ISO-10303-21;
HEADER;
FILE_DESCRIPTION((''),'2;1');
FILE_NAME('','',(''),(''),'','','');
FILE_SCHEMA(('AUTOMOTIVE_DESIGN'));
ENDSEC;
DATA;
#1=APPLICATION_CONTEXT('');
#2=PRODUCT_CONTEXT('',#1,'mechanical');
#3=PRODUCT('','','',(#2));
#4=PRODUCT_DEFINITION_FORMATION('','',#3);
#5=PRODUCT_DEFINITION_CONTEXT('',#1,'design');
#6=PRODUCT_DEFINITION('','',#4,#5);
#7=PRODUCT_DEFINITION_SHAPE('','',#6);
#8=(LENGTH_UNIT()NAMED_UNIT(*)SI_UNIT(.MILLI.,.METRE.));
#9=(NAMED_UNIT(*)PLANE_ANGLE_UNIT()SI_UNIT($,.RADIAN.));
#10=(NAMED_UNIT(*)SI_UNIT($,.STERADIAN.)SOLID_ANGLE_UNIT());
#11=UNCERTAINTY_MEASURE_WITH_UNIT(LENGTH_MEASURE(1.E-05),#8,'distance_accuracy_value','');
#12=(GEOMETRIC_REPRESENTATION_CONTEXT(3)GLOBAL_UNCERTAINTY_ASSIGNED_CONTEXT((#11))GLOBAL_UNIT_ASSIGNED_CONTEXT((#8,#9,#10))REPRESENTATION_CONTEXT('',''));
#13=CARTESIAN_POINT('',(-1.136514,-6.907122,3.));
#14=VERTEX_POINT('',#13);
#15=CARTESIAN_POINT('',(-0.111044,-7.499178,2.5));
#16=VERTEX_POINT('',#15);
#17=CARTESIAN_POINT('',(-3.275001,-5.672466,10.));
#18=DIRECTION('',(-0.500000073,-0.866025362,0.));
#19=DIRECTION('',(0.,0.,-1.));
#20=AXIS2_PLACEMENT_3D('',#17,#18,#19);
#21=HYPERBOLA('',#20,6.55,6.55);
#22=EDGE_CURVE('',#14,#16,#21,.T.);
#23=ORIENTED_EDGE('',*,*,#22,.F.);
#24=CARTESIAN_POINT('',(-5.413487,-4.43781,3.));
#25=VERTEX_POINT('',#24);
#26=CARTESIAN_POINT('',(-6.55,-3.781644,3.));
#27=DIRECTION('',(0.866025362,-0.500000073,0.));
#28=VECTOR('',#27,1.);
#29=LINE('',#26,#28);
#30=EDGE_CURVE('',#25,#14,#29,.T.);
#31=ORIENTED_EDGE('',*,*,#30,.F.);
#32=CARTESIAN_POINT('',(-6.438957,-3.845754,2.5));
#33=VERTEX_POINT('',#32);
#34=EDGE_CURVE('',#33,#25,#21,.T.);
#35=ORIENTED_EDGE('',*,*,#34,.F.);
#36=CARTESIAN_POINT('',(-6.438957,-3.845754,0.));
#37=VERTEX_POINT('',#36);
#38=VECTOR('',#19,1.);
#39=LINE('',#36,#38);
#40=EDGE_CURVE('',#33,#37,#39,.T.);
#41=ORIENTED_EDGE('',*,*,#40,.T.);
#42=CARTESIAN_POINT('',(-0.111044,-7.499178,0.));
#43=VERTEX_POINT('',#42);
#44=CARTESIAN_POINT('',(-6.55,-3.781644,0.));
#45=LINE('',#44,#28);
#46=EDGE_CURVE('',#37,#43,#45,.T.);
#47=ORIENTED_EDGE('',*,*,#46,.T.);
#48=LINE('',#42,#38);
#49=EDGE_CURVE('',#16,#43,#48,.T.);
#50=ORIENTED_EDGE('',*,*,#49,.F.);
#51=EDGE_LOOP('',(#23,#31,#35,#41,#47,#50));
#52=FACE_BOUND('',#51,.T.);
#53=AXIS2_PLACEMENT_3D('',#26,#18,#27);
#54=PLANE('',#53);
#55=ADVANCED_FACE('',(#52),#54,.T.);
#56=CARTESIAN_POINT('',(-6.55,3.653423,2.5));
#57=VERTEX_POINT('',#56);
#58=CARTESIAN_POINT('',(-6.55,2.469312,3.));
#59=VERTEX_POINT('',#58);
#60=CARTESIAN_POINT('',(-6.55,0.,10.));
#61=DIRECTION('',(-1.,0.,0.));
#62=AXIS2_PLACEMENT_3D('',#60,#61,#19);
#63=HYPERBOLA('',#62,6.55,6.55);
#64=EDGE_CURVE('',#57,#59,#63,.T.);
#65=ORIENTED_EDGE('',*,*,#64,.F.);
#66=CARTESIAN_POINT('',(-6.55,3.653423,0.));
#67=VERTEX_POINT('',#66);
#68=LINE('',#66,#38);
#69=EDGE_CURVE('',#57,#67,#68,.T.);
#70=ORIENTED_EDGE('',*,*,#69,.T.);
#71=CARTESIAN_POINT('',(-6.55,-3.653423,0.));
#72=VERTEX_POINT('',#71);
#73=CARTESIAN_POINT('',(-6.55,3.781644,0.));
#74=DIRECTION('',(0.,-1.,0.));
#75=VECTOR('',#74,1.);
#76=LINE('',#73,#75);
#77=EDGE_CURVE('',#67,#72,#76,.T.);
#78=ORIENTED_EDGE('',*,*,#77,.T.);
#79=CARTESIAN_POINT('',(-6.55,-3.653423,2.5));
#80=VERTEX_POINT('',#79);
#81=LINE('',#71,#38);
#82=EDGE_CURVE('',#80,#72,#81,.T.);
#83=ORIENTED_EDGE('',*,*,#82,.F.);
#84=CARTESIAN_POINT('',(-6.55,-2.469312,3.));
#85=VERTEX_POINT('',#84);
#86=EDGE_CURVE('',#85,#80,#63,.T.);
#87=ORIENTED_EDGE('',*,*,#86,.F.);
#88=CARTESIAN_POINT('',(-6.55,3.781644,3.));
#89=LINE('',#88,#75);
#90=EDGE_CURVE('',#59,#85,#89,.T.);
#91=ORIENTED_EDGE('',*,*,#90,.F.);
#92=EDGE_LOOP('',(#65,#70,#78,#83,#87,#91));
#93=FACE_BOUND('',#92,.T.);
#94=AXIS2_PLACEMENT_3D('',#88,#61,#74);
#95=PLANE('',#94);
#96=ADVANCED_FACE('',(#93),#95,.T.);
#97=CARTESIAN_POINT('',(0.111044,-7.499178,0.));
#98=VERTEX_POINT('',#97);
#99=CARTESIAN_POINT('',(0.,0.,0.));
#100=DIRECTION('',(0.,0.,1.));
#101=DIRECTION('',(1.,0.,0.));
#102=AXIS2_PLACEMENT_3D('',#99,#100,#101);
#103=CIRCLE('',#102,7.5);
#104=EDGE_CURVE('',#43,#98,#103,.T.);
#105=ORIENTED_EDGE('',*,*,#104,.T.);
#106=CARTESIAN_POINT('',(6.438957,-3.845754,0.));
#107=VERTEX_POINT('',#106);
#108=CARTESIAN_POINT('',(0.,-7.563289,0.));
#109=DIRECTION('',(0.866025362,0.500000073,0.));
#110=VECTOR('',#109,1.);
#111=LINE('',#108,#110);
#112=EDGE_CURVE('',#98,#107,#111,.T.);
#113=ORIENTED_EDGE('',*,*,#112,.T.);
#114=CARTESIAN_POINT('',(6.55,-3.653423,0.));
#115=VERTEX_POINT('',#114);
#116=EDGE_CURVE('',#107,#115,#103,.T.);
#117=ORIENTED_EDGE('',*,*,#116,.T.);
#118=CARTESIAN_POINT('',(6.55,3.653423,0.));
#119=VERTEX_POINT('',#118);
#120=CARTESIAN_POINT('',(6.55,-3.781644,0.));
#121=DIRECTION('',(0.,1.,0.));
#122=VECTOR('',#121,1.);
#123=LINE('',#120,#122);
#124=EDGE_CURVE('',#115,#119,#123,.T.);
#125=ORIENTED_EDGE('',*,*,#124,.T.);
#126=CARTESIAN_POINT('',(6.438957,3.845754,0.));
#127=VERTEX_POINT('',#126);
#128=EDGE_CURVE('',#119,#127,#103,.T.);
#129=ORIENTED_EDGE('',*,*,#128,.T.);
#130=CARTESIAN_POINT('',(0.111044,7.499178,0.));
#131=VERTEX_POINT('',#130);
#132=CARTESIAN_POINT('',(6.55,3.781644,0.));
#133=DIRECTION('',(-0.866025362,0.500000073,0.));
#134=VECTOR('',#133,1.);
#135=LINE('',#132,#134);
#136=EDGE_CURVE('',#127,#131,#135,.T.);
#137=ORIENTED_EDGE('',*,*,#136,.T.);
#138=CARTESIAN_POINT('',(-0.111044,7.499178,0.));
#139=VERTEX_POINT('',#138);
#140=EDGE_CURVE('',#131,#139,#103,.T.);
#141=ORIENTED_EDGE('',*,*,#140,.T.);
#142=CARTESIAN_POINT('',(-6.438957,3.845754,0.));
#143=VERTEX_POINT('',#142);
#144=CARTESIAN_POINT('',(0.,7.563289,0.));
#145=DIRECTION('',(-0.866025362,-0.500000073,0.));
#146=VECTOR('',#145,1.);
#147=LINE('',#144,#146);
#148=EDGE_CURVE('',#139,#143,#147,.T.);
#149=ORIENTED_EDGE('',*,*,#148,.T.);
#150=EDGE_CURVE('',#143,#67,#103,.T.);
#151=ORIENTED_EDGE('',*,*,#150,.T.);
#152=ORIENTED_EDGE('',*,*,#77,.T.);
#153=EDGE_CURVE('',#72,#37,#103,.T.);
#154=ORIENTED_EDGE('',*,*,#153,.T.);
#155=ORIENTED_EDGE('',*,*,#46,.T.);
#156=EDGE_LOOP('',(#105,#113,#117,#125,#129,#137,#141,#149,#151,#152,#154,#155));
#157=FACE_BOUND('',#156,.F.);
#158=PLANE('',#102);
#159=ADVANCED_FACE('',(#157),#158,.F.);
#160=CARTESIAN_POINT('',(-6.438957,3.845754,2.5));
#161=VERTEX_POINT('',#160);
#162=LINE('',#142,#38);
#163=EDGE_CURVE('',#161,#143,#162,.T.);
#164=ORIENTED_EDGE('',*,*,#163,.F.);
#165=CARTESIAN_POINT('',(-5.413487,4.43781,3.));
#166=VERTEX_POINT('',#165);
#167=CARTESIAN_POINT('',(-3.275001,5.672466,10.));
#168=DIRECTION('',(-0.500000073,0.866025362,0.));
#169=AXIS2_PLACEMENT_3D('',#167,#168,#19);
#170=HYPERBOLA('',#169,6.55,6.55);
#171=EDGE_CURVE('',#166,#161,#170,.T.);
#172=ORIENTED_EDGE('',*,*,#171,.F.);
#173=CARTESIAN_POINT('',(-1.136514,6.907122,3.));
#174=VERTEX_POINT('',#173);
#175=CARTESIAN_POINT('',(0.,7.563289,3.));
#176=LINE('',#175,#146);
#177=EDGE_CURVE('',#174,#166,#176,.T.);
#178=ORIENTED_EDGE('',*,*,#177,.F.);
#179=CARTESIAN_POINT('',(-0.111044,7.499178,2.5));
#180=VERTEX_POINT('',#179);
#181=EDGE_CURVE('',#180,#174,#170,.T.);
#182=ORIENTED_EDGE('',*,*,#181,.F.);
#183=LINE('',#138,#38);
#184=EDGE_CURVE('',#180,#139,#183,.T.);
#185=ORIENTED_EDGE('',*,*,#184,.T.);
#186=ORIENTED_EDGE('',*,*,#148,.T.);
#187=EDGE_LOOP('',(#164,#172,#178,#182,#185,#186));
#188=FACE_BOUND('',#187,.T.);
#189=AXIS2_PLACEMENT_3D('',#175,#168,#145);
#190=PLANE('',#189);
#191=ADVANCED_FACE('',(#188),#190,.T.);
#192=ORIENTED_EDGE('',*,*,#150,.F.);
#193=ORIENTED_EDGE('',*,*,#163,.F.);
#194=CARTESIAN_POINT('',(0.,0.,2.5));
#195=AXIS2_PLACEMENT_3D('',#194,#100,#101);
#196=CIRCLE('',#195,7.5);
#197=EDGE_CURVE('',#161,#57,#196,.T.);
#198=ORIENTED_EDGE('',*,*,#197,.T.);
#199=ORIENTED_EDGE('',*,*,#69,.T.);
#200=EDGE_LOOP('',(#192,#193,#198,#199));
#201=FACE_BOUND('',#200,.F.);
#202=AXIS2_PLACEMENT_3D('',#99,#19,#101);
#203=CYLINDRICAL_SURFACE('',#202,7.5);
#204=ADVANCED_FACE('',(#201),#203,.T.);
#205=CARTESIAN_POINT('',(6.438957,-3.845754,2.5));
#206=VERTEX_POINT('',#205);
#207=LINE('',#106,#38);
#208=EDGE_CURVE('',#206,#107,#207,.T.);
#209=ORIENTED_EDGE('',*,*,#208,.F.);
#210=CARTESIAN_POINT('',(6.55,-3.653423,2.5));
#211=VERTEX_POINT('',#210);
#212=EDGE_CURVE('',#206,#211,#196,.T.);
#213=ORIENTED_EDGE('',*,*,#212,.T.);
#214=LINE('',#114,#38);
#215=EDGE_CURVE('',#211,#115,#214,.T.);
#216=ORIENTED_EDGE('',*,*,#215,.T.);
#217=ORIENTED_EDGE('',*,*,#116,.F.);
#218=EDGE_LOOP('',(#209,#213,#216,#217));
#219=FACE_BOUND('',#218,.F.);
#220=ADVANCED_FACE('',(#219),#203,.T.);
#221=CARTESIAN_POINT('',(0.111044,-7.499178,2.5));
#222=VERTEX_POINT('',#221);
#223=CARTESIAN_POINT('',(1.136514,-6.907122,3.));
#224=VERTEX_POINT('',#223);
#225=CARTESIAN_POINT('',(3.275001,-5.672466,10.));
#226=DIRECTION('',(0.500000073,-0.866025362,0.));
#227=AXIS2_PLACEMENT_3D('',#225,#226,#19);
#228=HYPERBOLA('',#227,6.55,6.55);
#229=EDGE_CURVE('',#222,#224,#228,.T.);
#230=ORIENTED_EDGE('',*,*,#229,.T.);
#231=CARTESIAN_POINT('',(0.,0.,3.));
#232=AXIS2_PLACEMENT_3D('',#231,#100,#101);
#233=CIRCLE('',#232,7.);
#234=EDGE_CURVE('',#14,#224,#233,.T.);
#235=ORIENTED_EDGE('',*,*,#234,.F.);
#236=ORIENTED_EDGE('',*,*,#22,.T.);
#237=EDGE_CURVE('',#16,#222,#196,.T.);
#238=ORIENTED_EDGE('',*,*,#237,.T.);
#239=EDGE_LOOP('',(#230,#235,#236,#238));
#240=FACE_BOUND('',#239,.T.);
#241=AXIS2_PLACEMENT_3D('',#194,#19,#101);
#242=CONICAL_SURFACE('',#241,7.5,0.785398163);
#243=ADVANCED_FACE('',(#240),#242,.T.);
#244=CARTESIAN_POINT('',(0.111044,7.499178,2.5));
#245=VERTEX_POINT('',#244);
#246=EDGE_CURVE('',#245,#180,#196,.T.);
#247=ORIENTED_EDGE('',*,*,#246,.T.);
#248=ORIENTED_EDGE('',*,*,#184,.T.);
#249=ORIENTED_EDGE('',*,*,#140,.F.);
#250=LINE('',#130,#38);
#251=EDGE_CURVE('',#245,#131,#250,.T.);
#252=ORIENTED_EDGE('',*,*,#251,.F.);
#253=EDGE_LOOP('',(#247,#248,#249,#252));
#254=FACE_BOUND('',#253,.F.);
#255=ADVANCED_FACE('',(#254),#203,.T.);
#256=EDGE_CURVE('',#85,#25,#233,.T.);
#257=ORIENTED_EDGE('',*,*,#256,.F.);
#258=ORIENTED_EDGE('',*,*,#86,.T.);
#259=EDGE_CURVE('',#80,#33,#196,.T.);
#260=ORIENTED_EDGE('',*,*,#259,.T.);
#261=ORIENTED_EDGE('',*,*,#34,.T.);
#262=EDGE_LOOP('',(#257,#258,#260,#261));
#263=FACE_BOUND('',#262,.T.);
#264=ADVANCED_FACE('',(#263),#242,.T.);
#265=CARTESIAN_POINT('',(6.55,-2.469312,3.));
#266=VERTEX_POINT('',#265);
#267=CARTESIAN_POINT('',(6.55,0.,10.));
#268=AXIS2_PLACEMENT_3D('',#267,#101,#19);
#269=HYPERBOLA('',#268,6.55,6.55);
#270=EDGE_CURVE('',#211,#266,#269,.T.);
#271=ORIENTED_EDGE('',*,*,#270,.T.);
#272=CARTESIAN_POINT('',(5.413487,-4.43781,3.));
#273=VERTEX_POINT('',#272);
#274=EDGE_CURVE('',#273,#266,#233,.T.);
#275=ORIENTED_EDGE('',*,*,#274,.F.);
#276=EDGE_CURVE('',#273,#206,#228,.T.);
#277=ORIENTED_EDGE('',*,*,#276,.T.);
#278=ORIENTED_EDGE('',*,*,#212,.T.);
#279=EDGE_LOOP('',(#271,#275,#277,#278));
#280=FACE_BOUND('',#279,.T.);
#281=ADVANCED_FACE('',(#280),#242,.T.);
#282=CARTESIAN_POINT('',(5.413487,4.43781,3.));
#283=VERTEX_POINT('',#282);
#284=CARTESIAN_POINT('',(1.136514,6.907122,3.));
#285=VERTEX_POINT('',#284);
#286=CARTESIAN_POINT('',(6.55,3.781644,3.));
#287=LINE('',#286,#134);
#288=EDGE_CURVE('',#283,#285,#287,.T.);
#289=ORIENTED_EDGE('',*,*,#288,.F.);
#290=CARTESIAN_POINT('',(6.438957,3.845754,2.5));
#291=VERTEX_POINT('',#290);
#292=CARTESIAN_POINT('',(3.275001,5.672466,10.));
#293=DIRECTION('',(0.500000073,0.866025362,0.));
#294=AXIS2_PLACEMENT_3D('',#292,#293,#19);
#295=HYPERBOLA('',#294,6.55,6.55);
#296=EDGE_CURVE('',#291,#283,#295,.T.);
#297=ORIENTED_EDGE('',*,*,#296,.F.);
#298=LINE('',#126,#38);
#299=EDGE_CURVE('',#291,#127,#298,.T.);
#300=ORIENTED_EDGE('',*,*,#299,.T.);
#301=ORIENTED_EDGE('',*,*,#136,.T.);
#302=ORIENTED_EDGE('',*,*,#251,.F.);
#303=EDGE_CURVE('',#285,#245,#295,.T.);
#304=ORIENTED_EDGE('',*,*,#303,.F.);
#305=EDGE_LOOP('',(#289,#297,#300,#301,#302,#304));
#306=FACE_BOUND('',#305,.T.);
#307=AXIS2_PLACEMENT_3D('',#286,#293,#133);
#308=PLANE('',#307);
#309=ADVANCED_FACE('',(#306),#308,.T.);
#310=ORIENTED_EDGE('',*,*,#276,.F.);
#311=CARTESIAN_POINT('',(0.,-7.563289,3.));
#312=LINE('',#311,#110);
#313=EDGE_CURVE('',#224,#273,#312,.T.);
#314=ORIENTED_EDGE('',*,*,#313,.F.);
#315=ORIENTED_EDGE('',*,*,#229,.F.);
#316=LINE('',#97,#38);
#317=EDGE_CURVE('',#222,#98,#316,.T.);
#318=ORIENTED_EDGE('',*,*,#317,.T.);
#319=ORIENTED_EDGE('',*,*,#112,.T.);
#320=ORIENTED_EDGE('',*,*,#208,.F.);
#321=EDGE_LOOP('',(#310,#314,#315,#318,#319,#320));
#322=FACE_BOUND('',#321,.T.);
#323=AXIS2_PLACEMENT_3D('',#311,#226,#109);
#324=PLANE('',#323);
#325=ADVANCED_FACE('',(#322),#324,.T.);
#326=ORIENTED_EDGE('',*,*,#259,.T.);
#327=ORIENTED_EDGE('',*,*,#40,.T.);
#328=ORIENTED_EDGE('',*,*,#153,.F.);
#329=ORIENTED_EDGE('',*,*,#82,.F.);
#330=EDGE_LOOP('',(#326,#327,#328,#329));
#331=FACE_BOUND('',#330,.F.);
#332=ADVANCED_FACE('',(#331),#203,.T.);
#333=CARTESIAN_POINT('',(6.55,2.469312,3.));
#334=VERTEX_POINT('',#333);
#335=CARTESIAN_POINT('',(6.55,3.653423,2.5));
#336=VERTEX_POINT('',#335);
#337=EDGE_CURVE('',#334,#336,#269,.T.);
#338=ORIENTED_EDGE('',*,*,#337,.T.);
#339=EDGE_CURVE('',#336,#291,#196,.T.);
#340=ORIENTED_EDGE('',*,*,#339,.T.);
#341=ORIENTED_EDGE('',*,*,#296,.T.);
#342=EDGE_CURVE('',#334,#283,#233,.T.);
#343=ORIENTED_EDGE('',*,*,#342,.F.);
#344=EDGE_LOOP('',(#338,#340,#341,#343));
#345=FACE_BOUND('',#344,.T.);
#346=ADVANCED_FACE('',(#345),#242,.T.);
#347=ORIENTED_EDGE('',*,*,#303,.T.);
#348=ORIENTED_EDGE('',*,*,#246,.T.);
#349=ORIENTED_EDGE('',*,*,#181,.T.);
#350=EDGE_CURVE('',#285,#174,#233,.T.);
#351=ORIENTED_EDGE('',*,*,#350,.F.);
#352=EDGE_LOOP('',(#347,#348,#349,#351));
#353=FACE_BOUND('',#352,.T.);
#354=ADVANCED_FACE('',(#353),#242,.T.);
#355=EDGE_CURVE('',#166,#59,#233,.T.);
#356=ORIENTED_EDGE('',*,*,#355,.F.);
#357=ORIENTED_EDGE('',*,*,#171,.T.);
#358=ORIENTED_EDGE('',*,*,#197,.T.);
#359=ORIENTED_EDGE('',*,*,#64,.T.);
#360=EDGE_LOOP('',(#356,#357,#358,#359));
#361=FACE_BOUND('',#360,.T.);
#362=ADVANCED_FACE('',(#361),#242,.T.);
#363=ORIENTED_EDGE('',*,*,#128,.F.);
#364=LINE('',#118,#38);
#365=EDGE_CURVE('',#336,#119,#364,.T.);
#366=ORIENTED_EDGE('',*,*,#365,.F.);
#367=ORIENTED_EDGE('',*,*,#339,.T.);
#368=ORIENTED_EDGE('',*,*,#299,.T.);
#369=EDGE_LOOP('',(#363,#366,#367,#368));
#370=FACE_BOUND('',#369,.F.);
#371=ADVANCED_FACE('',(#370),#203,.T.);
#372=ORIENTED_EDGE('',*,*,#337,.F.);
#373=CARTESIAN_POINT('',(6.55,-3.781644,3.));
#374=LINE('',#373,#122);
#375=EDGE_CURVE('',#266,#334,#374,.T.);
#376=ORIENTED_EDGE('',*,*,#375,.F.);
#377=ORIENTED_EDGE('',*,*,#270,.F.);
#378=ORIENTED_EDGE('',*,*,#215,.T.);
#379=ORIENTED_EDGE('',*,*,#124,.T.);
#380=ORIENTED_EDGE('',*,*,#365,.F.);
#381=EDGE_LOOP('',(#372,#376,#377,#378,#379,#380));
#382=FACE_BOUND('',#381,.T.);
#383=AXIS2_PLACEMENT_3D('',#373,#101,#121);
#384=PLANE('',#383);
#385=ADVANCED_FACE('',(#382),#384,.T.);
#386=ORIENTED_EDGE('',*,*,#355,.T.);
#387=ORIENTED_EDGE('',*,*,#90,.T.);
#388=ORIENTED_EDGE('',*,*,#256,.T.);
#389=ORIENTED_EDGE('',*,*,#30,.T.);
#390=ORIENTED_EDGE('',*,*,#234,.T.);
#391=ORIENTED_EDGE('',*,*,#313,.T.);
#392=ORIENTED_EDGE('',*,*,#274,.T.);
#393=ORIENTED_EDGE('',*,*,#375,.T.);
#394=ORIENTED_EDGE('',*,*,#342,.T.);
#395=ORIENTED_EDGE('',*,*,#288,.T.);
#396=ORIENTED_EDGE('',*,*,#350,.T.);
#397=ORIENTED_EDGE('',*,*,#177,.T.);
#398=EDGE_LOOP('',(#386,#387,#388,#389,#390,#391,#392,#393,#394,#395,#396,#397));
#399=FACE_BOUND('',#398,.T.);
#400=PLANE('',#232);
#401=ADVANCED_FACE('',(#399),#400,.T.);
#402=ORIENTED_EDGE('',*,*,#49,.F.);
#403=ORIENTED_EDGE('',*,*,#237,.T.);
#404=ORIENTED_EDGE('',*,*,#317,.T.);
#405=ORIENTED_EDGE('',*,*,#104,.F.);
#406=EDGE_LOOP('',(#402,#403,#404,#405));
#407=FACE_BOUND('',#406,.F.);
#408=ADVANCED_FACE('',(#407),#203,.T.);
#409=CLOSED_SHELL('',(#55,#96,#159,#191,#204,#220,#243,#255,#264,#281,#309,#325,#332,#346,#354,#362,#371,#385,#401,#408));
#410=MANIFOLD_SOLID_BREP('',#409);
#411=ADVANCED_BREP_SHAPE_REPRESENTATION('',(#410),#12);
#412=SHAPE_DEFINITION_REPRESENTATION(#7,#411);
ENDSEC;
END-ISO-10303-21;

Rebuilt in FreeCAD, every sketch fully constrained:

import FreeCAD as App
import Part
import Sketcher
from FreeCAD import Vector
Q = App.Units.Quantity


def edges_at(feature, points):
    """Names of the edges that pass closest to the given points."""
    edges = feature.Shape.Edges
    near = lambda p: min(range(len(edges)), key=lambda i: edges[i].distToShape(Part.Vertex(*p))[0])
    return sorted({f"Edge{near(p) + 1}" for p in points})

doc = App.newDocument("Part")
body = doc.addObject("PartDesign::Body", "Body")

# Sketch on XY plane
sketch1 = body.newObject("Sketcher::SketchObject", "Sketch")
sketch1.AttachmentSupport = (doc.getObject("XY_Plane"), [""])
sketch1.MapMode = "FlatFace"
sketch1.addGeometry(Part.Circle(Vector(0, 0, 0), Vector(0, 0, 1), 8), False)
sketch1.addConstraint([
    Sketcher.Constraint("Coincident", 0, 3, -1, 1),
    Sketcher.Constraint("Diameter", 0, Q("15 mm")),
])
pad1 = body.newObject("PartDesign::Pad", "Pad")
pad1.Profile = sketch1
pad1.Length = 3
doc.recompute()

chamfer = body.newObject("PartDesign::Chamfer", "Chamfer")
chamfer.Base = (pad1, edges_at(pad1, [(-7.5, 0, 3)]))
chamfer.Size = 0.5
body2 = doc.addObject("PartDesign::Body", "Body001")

# Sketch on XY plane
sketch2 = body2.newObject("Sketcher::SketchObject", "Sketch001")
sketch2.AttachmentSupport = (doc.getObject("XY_Plane001"), [""])
sketch2.MapMode = "FlatFace"
sketch2.AttachmentOffset = App.Placement(Vector(0, 0, 3), App.Rotation())
sketch2.addGeometry([
    Part.LineSegment(Vector(7, -4, 0), Vector(7, 4, 0)),  # 0
    Part.LineSegment(Vector(7, 4, 0), Vector(0, 8, 0)),  # 1
    Part.LineSegment(Vector(0, 8, 0), Vector(-7, 4, 0)),  # 2
    Part.LineSegment(Vector(-7, 4, 0), Vector(-7, -4, 0)),  # 3
    Part.LineSegment(Vector(-7, -4, 0), Vector(0, -8, 0)),  # 4
    Part.LineSegment(Vector(0, -8, 0), Vector(7, -4, 0)),  # 5
], False)
sketch2.addConstraint([
    Sketcher.Constraint("Coincident", 0, 2, 1, 1),
    Sketcher.Constraint("Coincident", 1, 2, 2, 1),
    Sketcher.Constraint("Coincident", 2, 2, 3, 1),
    Sketcher.Constraint("Coincident", 3, 2, 4, 1),
    Sketcher.Constraint("Coincident", 4, 2, 5, 1),
    Sketcher.Constraint("Coincident", 5, 2, 0, 1),
    Sketcher.Constraint("Vertical", 0),
    Sketcher.Constraint("Vertical", 3),
    Sketcher.Constraint("Symmetric", 0, 2, 3, 2, -1, 1),
    Sketcher.Constraint("Symmetric", 1, 2, 4, 2, -1, 1),
    Sketcher.Constraint("PointOnObject", 1, 2, -2),
    Sketcher.Constraint("Parallel", 2, 5),
    Sketcher.Constraint("Horizontal", 0, 2, 2, 2),
    Sketcher.Constraint("Angle", 1, Q("149.999995 deg")),
    Sketcher.Constraint("DistanceX", 2, 2, 0, 2, Q("13.1 mm")),
    Sketcher.Constraint("DistanceY", 0, 1, 0, 2, Q("7.563288 mm")),
])
pad2 = body2.newObject("PartDesign::Pad", "Pad001")
pad2.Profile = sketch2
pad2.Length = 3
pad2.Reversed = True
doc.recompute()

boolean = body2.newObject("PartDesign::Boolean", "Boolean")
boolean.Type = "Common"
boolean.addObjects([body])

doc.recompute()
